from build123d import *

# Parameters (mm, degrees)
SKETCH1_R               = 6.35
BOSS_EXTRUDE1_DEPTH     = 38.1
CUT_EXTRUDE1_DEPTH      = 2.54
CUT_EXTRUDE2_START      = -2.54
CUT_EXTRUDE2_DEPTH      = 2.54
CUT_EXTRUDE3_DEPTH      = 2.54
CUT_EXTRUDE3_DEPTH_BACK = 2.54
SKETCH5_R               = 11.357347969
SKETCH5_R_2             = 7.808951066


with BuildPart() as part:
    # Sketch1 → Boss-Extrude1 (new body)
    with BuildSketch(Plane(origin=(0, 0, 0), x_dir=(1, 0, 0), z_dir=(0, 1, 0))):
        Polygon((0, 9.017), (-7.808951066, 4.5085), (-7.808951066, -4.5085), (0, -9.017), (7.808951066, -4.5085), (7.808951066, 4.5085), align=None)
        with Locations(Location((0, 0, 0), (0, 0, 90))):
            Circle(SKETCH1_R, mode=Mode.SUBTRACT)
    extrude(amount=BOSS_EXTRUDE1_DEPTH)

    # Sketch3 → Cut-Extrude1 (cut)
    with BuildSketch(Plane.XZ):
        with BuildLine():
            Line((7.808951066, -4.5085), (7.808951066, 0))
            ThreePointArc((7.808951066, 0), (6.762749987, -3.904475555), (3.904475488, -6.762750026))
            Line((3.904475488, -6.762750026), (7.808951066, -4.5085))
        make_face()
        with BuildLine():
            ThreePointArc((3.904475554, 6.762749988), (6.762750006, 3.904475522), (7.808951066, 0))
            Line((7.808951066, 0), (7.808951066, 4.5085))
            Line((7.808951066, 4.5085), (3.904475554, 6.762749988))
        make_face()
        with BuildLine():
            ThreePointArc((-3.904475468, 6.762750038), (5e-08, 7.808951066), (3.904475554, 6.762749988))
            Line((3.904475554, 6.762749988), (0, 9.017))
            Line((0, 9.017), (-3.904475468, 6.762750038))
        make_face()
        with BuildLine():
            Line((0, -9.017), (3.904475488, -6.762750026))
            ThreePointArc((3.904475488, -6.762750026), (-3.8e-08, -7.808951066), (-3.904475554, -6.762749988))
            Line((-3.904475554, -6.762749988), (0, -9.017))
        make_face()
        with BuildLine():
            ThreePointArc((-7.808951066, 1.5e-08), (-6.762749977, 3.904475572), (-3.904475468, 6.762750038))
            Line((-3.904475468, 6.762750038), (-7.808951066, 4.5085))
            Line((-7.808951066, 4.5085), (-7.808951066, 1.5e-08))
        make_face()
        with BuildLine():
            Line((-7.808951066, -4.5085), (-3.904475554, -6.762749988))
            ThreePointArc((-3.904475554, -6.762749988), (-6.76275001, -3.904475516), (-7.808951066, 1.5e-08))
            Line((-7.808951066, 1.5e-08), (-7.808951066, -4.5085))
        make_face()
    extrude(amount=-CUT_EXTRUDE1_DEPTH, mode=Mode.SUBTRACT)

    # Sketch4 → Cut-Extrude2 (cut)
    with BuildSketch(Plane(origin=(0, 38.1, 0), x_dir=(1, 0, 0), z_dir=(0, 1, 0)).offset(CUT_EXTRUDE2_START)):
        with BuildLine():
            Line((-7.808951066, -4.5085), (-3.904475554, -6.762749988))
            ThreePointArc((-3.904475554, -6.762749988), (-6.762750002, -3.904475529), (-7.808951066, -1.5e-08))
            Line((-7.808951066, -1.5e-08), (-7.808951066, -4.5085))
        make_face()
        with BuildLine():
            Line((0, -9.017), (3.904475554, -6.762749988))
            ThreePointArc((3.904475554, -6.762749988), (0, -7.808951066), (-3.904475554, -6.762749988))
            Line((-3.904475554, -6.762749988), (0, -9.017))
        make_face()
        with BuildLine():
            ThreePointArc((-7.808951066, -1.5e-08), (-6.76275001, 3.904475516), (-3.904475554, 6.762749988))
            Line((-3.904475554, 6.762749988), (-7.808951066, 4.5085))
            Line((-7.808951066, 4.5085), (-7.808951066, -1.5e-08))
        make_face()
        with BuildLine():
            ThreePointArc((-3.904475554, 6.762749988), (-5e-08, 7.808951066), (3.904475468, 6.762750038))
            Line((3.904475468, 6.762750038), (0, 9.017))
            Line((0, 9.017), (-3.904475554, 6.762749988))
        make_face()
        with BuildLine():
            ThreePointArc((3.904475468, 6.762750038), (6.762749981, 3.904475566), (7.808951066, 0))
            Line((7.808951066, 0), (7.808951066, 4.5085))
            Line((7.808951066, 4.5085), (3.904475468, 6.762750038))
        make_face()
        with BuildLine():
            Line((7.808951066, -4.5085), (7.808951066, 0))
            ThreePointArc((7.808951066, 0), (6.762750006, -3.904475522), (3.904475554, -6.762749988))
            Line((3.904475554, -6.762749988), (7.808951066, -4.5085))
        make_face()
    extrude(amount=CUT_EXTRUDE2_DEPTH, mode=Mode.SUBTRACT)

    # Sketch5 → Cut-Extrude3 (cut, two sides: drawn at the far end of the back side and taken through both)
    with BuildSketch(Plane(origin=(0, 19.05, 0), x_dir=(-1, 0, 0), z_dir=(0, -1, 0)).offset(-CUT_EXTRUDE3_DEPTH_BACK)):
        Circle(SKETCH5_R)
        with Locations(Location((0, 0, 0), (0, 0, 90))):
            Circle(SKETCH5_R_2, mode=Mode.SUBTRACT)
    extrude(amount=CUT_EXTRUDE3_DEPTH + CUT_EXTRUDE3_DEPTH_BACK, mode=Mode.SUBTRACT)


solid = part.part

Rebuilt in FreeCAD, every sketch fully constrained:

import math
import FreeCAD as App
import Part
import Sketcher
from FreeCAD import Vector
Q = App.Units.Quantity

doc = App.newDocument("Part")
body = doc.addObject("PartDesign::Body", "Body")

# Sketch on XZ plane
sketch1 = body.newObject("Sketcher::SketchObject", "Sketch")
sketch1.AttachmentSupport = (doc.getObject("XZ_Plane"), [""])
sketch1.MapMode = "FlatFace"
sketch1.addGeometry([
    Part.LineSegment(Vector(0, -9, 0), Vector(-8, -5, 0)),  # 0
    Part.LineSegment(Vector(-8, -5, 0), Vector(-8, 5, 0)),  # 1
    Part.LineSegment(Vector(-8, 5, 0), Vector(0, 9, 0)),  # 2
    Part.LineSegment(Vector(0, 9, 0), Vector(8, 5, 0)),  # 3
    Part.LineSegment(Vector(8, 5, 0), Vector(8, -5, 0)),  # 4
    Part.LineSegment(Vector(8, -5, 0), Vector(0, -9, 0)),  # 5
    Part.Circle(Vector(0, 0, 0), Vector(0, 0, 1), 6),  # 6
], False)
sketch1.addConstraint([
    Sketcher.Constraint("Coincident", 0, 2, 1, 1),
    Sketcher.Constraint("Coincident", 1, 2, 2, 1),
    Sketcher.Constraint("Coincident", 2, 2, 3, 1),
    Sketcher.Constraint("Coincident", 3, 2, 4, 1),
    Sketcher.Constraint("Coincident", 4, 2, 5, 1),
    Sketcher.Constraint("Coincident", 5, 2, 0, 1),
    Sketcher.Constraint("Vertical", 1),
    Sketcher.Constraint("Vertical", 4),
    Sketcher.Constraint("Coincident", 6, 3, -1, 1),
    Sketcher.Constraint("Symmetric", 0, 2, 3, 2, -1, 1),
    Sketcher.Constraint("Symmetric", 2, 2, 5, 2, -1, 1),
    Sketcher.Constraint("PointOnObject", 2, 2, -2),
    Sketcher.Constraint("Parallel", 2, 5),
    Sketcher.Constraint("Horizontal", 1, 2, 3, 2),
    Sketcher.Constraint("Diameter", 6, Q("0.5 in")),
    Sketcher.Constraint("Angle", 0, Q("150 deg")),
    Sketcher.Constraint("DistanceY", 1, 1, 1, 2, Q("0.355 in")),
    Sketcher.Constraint("Distance", 0, Q("0.355 in")),
])
pad1 = body.newObject("PartDesign::Pad", "Pad")
pad1.Profile = sketch1
pad1.Length = Q("1.5 in")
pad1.Reversed = True

# Sketch on XZ plane
sketch2 = body.newObject("Sketcher::SketchObject", "Sketch001")
sketch2.AttachmentSupport = (doc.getObject("XZ_Plane"), [""])
sketch2.MapMode = "FlatFace"
sketch2.addGeometry([
    Part.LineSegment(Vector(7.8, -4.5, 0), Vector(7.8, 0, 0)),  # 0
    Part.ArcOfCircle(Part.Circle(Vector(0, 0, 0), Vector(0, 0, 1), 7.8), math.radians(-60), math.radians(0)),  # 1
    Part.LineSegment(Vector(3.9, -6.8, 0), Vector(7.8, -4.5, 0)),  # 2
    Part.ArcOfCircle(Part.Circle(Vector(0, 0, 0), Vector(0, 0, 1), 7.8), math.radians(0), math.radians(60)),  # 3
    Part.LineSegment(Vector(7.8, 0, 0), Vector(7.8, 4.5, 0)),  # 4
    Part.LineSegment(Vector(7.8, 4.5, 0), Vector(3.9, 6.8, 0)),  # 5
    Part.ArcOfCircle(Part.Circle(Vector(0, 0, 0), Vector(0, 0, 1), 7.8), math.radians(60), math.radians(120)),  # 6
    Part.LineSegment(Vector(3.9, 6.8, 0), Vector(0, 9, 0)),  # 7
    Part.LineSegment(Vector(0, 9, 0), Vector(-3.9, 6.8, 0)),  # 8
    Part.LineSegment(Vector(0, -9, 0), Vector(3.9, -6.8, 0)),  # 9
    Part.ArcOfCircle(Part.Circle(Vector(0, 0, 0), Vector(0, 0, 1), 7.8), math.radians(-120), math.radians(-60)),  # 10
    Part.LineSegment(Vector(-3.9, -6.8, 0), Vector(0, -9, 0)),  # 11
    Part.ArcOfCircle(Part.Circle(Vector(0, 0, 0), Vector(0, 0, 1), 7.8), math.radians(120), math.radians(180)),  # 12
    Part.LineSegment(Vector(-3.9, 6.8, 0), Vector(-7.8, 4.5, 0)),  # 13
    Part.LineSegment(Vector(-7.8, 4.5, 0), Vector(-7.8, 0, 0)),  # 14
    Part.LineSegment(Vector(-7.8, -4.5, 0), Vector(-3.9, -6.8, 0)),  # 15
    Part.ArcOfCircle(Part.Circle(Vector(0, 0, 0), Vector(0, 0, 1), 7.8), math.radians(180), math.radians(240)),  # 16
    Part.LineSegment(Vector(-7.8, 0, 0), Vector(-7.8, -4.5, 0)),  # 17
], False)
sketch2.addConstraint([
    Sketcher.Constraint("Tangent", 0, 2, 1, 2),
    Sketcher.Constraint("Tangent", 1, 1, 2, 1),
    Sketcher.Constraint("Coincident", 2, 2, 0, 1),
    Sketcher.Constraint("Tangent", 3, 1, 4, 1),
    Sketcher.Constraint("Coincident", 4, 2, 5, 1),
    Sketcher.Constraint("Tangent", 5, 2, 3, 2),
    Sketcher.Constraint("Tangent", 6, 1, 7, 1),
    Sketcher.Constraint("Coincident", 7, 2, 8, 1),
    Sketcher.Constraint("Tangent", 8, 2, 6, 2),
    Sketcher.Constraint("Tangent", 9, 2, 10, 2),
    Sketcher.Constraint("Tangent", 10, 1, 11, 1),
    Sketcher.Constraint("Coincident", 11, 2, 9, 1),
    Sketcher.Constraint("Tangent", 12, 1, 13, 1),
    Sketcher.Constraint("Coincident", 13, 2, 14, 1),
    Sketcher.Constraint("Tangent", 14, 2, 12, 2),
    Sketcher.Constraint("Tangent", 15, 2, 16, 2),
    Sketcher.Constraint("Tangent", 16, 1, 17, 1),
    Sketcher.Constraint("Coincident", 17, 2, 15, 1),
    Sketcher.Constraint("Vertical", 0),
    Sketcher.Constraint("Vertical", 4),
    Sketcher.Constraint("Vertical", 14),
    Sketcher.Constraint("Vertical", 17),
    Sketcher.Constraint("Coincident", 1, 3, -1, 1),
    Sketcher.Constraint("Coincident", 3, 3, -1, 1),
    Sketcher.Constraint("Coincident", 6, 3, -1, 1),
    Sketcher.Constraint("Coincident", 10, 3, -1, 1),
    Sketcher.Constraint("Coincident", 12, 3, -1, 1),
    Sketcher.Constraint("Coincident", 16, 3, -1, 1),
    Sketcher.Constraint("Coincident", 6, 1, 5, 2),
    Sketcher.Constraint("Coincident", 9, 2, 1, 1),
    Sketcher.Constraint("Coincident", 12, 1, 8, 2),
    Sketcher.Constraint("Coincident", 15, 2, 10, 1),
    Sketcher.Constraint("Equal", 1, 3),
    Sketcher.Constraint("Symmetric", 7, 2, 11, 2, -1, 1),
    Sketcher.Constraint("PointOnObject", 7, 2, -2),
    Sketcher.Constraint("Equal", 5, 7),
    Sketcher.Constraint("DistanceY", 0, 1, 0, 2, Q("0.1775 in")),
])
pocket1 = body.newObject("PartDesign::Pocket", "Pocket")
pocket1.Profile = sketch2
pocket1.Length = Q("0.1 in")

# Sketch on XZ plane
sketch3 = body.newObject("Sketcher::SketchObject", "Sketch002")
sketch3.AttachmentSupport = (doc.getObject("XZ_Plane"), [""])
sketch3.MapMode = "FlatFace"
sketch3.AttachmentOffset = App.Placement(Vector(0, 0, -1.4 * 25.4), App.Rotation())
sketch3.addGeometry([
    Part.LineSegment(Vector(-7.8, 4.5, 0), Vector(-3.9, 6.8, 0)),  # 0
    Part.ArcOfCircle(Part.Circle(Vector(0, 0, 0), Vector(0, 0, 1), 7.8), math.radians(120), math.radians(180)),  # 1
    Part.LineSegment(Vector(-7.8, 0, 0), Vector(-7.8, 4.5, 0)),  # 2
    Part.LineSegment(Vector(0, 9, 0), Vector(3.9, 6.8, 0)),  # 3
    Part.ArcOfCircle(Part.Circle(Vector(0, 0, 0), Vector(0, 0, 1), 7.8), math.radians(60), math.radians(120)),  # 4
    Part.LineSegment(Vector(-3.9, 6.8, 0), Vector(0, 9, 0)),  # 5
    Part.ArcOfCircle(Part.Circle(Vector(0, 0, 0), Vector(0, 0, 1), 7.8), math.radians(180), math.radians(240)),  # 6
    Part.LineSegment(Vector(-3.9, -6.8, 0), Vector(-7.8, -4.5, 0)),  # 7
    Part.LineSegment(Vector(-7.8, -4.5, 0), Vector(-7.8, 0, 0)),  # 8
    Part.ArcOfCircle(Part.Circle(Vector(0, 0, 0), Vector(0, 0, 1), 7.8), math.radians(-120), math.radians(-60)),  # 9
    Part.LineSegment(Vector(3.9, -6.8, 0), Vector(0, -9, 0)),  # 10
    Part.LineSegment(Vector(0, -9, 0), Vector(-3.9, -6.8, 0)),  # 11
    Part.ArcOfCircle(Part.Circle(Vector(0, 0, 0), Vector(0, 0, 1), 7.8), math.radians(-60), math.radians(0)),  # 12
    Part.LineSegment(Vector(7.8, 0, 0), Vector(7.8, -4.5, 0)),  # 13
    Part.LineSegment(Vector(7.8, -4.5, 0), Vector(3.9, -6.8, 0)),  # 14
    Part.LineSegment(Vector(7.8, 4.5, 0), Vector(7.8, 0, 0)),  # 15
    Part.ArcOfCircle(Part.Circle(Vector(0, 0, 0), Vector(0, 0, 1), 7.8), math.radians(0), math.radians(60)),  # 16
    Part.LineSegment(Vector(3.9, 6.8, 0), Vector(7.8, 4.5, 0)),  # 17
], False)
sketch3.addConstraint([
    Sketcher.Constraint("Tangent", 0, 2, 1, 1),
    Sketcher.Constraint("Tangent", 1, 2, 2, 1),
    Sketcher.Constraint("Coincident", 2, 2, 0, 1),
    Sketcher.Constraint("Tangent", 3, 2, 4, 1),
    Sketcher.Constraint("Tangent", 4, 2, 5, 1),
    Sketcher.Constraint("Coincident", 5, 2, 3, 1),
    Sketcher.Constraint("Tangent", 6, 2, 7, 1),
    Sketcher.Constraint("Coincident", 7, 2, 8, 1),
    Sketcher.Constraint("Tangent", 8, 2, 6, 1),
    Sketcher.Constraint("Tangent", 9, 2, 10, 1),
    Sketcher.Constraint("Coincident", 10, 2, 11, 1),
    Sketcher.Constraint("Tangent", 11, 2, 9, 1),
    Sketcher.Constraint("Tangent", 12, 2, 13, 1),
    Sketcher.Constraint("Coincident", 13, 2, 14, 1),
    Sketcher.Constraint("Tangent", 14, 2, 12, 1),
    Sketcher.Constraint("Tangent", 15, 2, 16, 1),
    Sketcher.Constraint("Tangent", 16, 2, 17, 1),
    Sketcher.Constraint("Coincident", 17, 2, 15, 1),
    Sketcher.Constraint("Vertical", 2),
    Sketcher.Constraint("Vertical", 8),
    Sketcher.Constraint("Vertical", 13),
    Sketcher.Constraint("Vertical", 15),
    Sketcher.Constraint("Coincident", 1, 3, -1, 1),
    Sketcher.Constraint("Coincident", 4, 3, -1, 1),
    Sketcher.Constraint("Coincident", 6, 3, -1, 1),
    Sketcher.Constraint("Coincident", 9, 3, -1, 1),
    Sketcher.Constraint("Coincident", 12, 3, -1, 1),
    Sketcher.Constraint("Coincident", 16, 3, -1, 1),
    Sketcher.Constraint("Coincident", 4, 2, 0, 2),
    Sketcher.Constraint("Coincident", 11, 2, 6, 2),
    Sketcher.Constraint("Coincident", 14, 2, 9, 2),
    Sketcher.Constraint("Coincident", 16, 2, 3, 2),
    Sketcher.Constraint("Equal", 4, 6),
    Sketcher.Constraint("Symmetric", 5, 2, 10, 2, -1, 1),
    Sketcher.Constraint("PointOnObject", 5, 2, -2),
    Sketcher.Constraint("Equal", 0, 3),
    Sketcher.Constraint("DistanceY", 2, 1, 2, 2, Q("0.1775 in")),
])
pocket2 = body.newObject("PartDesign::Pocket", "Pocket001")
pocket2.Profile = sketch3
pocket2.Length = Q("0.1 in")

# Sketch on XZ plane
sketch4 = body.newObject("Sketcher::SketchObject", "Sketch003")
sketch4.AttachmentSupport = (doc.getObject("XZ_Plane"), [""])
sketch4.MapMode = "FlatFace"
sketch4.AttachmentOffset = App.Placement(Vector(0, 0, -0.75 * 25.4), App.Rotation())
sketch4.addGeometry([
    Part.Circle(Vector(0, 0, 0), Vector(0, 0, 1), 11),
    Part.Circle(Vector(0, 0, 0), Vector(0, 0, 1), 8),
], False)
sketch4.addConstraint([
    Sketcher.Constraint("Coincident", 0, 3, -1, 1),
    Sketcher.Constraint("Coincident", 1, 3, -1, 1),
    Sketcher.Constraint("Diameter", 0, 22.714696),
    Sketcher.Constraint("Diameter", 1, 15.617902),
])
pocket3 = body.newObject("PartDesign::Pocket", "Pocket002")
pocket3.Profile = sketch4
pocket3.Type = "TwoLengths"
pocket3.Length = Q("0.1 in")
pocket3.Length2 = Q("0.1 in")
pocket3.Reversed = True

doc.recompute()
